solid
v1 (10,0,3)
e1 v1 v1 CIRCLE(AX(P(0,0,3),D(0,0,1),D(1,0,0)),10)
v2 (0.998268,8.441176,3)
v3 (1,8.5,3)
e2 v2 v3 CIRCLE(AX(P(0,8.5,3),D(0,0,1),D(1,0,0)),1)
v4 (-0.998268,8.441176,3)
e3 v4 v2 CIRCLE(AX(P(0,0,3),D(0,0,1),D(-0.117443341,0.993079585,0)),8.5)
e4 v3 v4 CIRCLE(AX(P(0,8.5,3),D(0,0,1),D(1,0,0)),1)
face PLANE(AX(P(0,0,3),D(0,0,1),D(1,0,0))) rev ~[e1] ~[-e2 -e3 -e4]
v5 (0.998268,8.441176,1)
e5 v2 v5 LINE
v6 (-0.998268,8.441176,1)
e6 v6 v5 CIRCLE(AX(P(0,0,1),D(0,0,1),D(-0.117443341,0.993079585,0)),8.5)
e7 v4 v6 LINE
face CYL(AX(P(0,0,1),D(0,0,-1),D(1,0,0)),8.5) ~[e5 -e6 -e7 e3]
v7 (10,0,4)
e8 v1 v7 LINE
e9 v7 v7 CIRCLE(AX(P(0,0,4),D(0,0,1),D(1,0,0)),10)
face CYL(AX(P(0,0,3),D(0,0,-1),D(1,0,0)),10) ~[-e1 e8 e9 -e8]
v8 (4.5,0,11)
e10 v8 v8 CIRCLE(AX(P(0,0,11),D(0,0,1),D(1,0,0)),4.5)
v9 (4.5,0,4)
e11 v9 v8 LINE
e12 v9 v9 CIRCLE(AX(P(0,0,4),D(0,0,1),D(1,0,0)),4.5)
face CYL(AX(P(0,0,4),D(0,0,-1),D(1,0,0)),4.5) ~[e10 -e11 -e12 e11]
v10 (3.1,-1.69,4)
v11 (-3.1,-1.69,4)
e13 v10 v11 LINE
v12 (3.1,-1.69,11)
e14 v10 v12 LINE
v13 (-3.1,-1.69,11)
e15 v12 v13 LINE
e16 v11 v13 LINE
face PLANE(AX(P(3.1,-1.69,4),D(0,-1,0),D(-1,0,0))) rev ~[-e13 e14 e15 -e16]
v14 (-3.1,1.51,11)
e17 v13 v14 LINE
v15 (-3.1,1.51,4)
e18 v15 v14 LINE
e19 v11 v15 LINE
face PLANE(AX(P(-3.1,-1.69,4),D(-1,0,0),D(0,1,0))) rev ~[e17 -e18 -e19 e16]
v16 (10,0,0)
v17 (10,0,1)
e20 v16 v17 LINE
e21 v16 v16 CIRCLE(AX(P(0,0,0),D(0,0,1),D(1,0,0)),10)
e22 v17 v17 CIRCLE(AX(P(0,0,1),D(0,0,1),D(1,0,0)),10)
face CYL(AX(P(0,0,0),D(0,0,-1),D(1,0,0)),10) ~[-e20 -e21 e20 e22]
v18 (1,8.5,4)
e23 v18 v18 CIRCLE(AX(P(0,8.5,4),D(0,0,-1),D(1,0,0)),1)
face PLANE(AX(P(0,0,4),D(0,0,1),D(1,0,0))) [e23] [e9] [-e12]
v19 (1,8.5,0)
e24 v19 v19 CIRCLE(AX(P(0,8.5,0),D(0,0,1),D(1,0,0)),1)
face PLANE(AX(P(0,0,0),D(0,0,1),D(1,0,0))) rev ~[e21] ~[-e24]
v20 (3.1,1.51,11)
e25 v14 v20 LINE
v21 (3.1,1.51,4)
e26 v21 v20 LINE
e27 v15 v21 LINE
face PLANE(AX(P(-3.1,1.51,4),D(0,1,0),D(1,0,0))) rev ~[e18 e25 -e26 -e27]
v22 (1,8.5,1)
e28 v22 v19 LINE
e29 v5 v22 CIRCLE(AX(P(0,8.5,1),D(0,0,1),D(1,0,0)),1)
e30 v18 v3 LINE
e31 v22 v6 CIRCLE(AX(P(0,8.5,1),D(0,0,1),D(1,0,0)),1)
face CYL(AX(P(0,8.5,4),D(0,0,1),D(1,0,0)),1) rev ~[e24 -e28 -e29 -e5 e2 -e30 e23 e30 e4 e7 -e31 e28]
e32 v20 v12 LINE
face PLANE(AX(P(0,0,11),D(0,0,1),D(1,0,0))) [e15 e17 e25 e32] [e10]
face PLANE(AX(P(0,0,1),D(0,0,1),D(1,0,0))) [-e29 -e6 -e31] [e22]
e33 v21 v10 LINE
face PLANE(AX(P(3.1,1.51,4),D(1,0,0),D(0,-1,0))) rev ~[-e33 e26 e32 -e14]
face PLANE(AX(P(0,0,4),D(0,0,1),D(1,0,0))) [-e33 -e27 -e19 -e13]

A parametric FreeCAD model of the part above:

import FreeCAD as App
import Part
import Sketcher

doc = App.newDocument("Part")
body = doc.addObject("PartDesign::Body", "Body")

# Sketch on XY plane
sketch1 = doc.addObject("Sketcher::SketchObject", "Sketch")
body.addObject(sketch1)
sketch1.AttachmentSupport = (doc.XY_Plane, [""])
sketch1.MapMode = "FlatFace"
sketch1.addGeometry(Part.Circle(App.Vector(0, 0, 0), App.Vector(0, 0, 1), 10), False)
sketch1.addConstraint(Sketcher.Constraint("Coincident", 0, 3, -1, 1))
sketch1.addConstraint(Sketcher.Constraint("Diameter", 0, 20.0))
pad1 = doc.addObject("PartDesign::Pad", "Pad")
body.addObject(pad1)
pad1.Profile = sketch1
pad1.Length = 1

# Sketch on XY plane
sketch2 = doc.addObject("Sketcher::SketchObject", "Sketch001")
body.addObject(sketch2)
sketch2.AttachmentSupport = (doc.XY_Plane, [""])
sketch2.MapMode = "FlatFace"
sketch2.AttachmentOffset = App.Placement(App.Vector(0, 0, 1), App.Rotation())
sketch2.addGeometry(Part.Circle(App.Vector(0, 0, 0), App.Vector(0, 0, 1), 8), False)
sketch2.addConstraint(Sketcher.Constraint("Coincident", 0, 3, -1, 1))
sketch2.addConstraint(Sketcher.Constraint("Diameter", 0, 17.0))
pad2 = doc.addObject("PartDesign::Pad", "Pad001")
body.addObject(pad2)
pad2.Profile = sketch2
pad2.Length = 2

# Sketch on XY plane
sketch3 = doc.addObject("Sketcher::SketchObject", "Sketch002")
body.addObject(sketch3)
sketch3.AttachmentSupport = (doc.XY_Plane, [""])
sketch3.MapMode = "FlatFace"
sketch3.AttachmentOffset = App.Placement(App.Vector(0, 0, 3), App.Rotation())
sketch3.addGeometry(Part.Circle(App.Vector(0, 0, 0), App.Vector(0, 0, 1), 10), False)
sketch3.addConstraint(Sketcher.Constraint("Coincident", 0, 3, -1, 1))
sketch3.addConstraint(Sketcher.Constraint("Diameter", 0, 20.0))
pad3 = doc.addObject("PartDesign::Pad", "Pad002")
body.addObject(pad3)
pad3.Profile = sketch3
pad3.Length = 1

# Sketch on XY plane
sketch4 = doc.addObject("Sketcher::SketchObject", "Sketch003")
body.addObject(sketch4)
sketch4.AttachmentSupport = (doc.XY_Plane, [""])
sketch4.MapMode = "FlatFace"
sketch4.AttachmentOffset = App.Placement(App.Vector(0, 0, 4), App.Rotation())
sketch4.addGeometry(Part.Circle(App.Vector(0, 0, 0), App.Vector(0, 0, 1), 4.5), False)
sketch4.addGeometry(Part.LineSegment(App.Vector(-3.1, -1.7, 0), App.Vector(-3.1, 1.5, 0)), False)
sketch4.addGeometry(Part.LineSegment(App.Vector(-3.1, 1.5, 0), App.Vector(3.1, 1.5, 0)), False)
sketch4.addGeometry(Part.LineSegment(App.Vector(3.1, 1.5, 0), App.Vector(3.1, -1.7, 0)), False)
sketch4.addGeometry(Part.LineSegment(App.Vector(3.1, -1.7, 0), App.Vector(-3.1, -1.7, 0)), False)
sketch4.addConstraint(Sketcher.Constraint("Coincident", 1, 2, 2, 1))
sketch4.addConstraint(Sketcher.Constraint("Coincident", 2, 2, 3, 1))
sketch4.addConstraint(Sketcher.Constraint("Coincident", 3, 2, 4, 1))
sketch4.addConstraint(Sketcher.Constraint("Coincident", 4, 2, 1, 1))
sketch4.addConstraint(Sketcher.Constraint("Vertical", 1))
sketch4.addConstraint(Sketcher.Constraint("Horizontal", 2))
sketch4.addConstraint(Sketcher.Constraint("Vertical", 3))
sketch4.addConstraint(Sketcher.Constraint("Horizontal", 4))
sketch4.addConstraint(Sketcher.Constraint("Coincident", 0, 3, -1, 1))
sketch4.addConstraint(Sketcher.Constraint("Diameter", 0, 9.0))
sketch4.addConstraint(Sketcher.Constraint("DistanceX", 2, 1, 2, 2, 6.2))
sketch4.addConstraint(Sketcher.Constraint("DistanceY", 1, 1, 1, 2, 3.2))
sketch4.addConstraint(Sketcher.Constraint("DistanceX", 1, 2, -1, 1, 3.1))
sketch4.addConstraint(Sketcher.Constraint("DistanceY", -1, 1, 1, 2, 1.51))
pad4 = doc.addObject("PartDesign::Pad", "Pad003")
body.addObject(pad4)
pad4.Profile = sketch4
pad4.Length = 7

# Sketch on XY plane
sketch5 = doc.addObject("Sketcher::SketchObject", "Sketch004")
body.addObject(sketch5)
sketch5.AttachmentSupport = (doc.XY_Plane, [""])
sketch5.MapMode = "FlatFace"
sketch5.AttachmentOffset = App.Placement(App.Vector(0, 0, 4), App.Rotation())
sketch5.addGeometry(Part.Circle(App.Vector(0, 8.5, 0), App.Vector(0, 0, 1), 1), False)
sketch5.addConstraint(Sketcher.Constraint("PointOnObject", 0, 3, -2))
sketch5.addConstraint(Sketcher.Constraint("Diameter", 0, 2.0))
sketch5.addConstraint(Sketcher.Constraint("DistanceY", -1, 1, 0, 3, 8.5))
pocket1 = doc.addObject("PartDesign::Pocket", "Pocket")
body.addObject(pocket1)
pocket1.Profile = sketch5
pocket1.Length = 7

doc.recompute()
